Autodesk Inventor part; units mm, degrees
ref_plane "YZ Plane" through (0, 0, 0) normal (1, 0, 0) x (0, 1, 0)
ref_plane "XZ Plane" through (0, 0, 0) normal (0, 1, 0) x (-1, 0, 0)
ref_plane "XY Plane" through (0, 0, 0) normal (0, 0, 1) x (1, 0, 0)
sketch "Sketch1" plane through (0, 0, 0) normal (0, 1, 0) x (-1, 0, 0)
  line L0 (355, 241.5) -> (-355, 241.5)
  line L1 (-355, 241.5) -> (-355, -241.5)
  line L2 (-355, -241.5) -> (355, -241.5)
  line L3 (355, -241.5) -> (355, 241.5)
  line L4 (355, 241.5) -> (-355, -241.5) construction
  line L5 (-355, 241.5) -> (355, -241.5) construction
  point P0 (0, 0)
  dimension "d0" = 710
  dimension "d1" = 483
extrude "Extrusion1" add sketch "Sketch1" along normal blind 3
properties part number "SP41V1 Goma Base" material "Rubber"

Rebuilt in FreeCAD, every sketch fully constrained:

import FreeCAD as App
import Part
import Sketcher
from FreeCAD import Vector

doc = App.newDocument("Part")
body = doc.addObject("PartDesign::Body", "Body")

# Sketch on XZ plane
sketch1 = body.newObject("Sketcher::SketchObject", "Sketch")
sketch1.AttachmentSupport = (doc.getObject("XZ_Plane"), [""])
sketch1.MapMode = "FlatFace"
sketch1.addGeometry(Part.LineSegment(Vector(-355, -242, 0), Vector(-355, 242, 0)), False)
sketch1.addGeometry(Part.LineSegment(Vector(-355, 242, 0), Vector(355, 242, 0)), False)
sketch1.addGeometry(Part.LineSegment(Vector(355, 242, 0), Vector(355, -242, 0)), False)
sketch1.addGeometry(Part.LineSegment(Vector(355, -242, 0), Vector(-355, -242, 0)), False)
sketch1.addConstraint(Sketcher.Constraint("Coincident", 0, 2, 1, 1))
sketch1.addConstraint(Sketcher.Constraint("Coincident", 1, 2, 2, 1))
sketch1.addConstraint(Sketcher.Constraint("Coincident", 2, 2, 3, 1))
sketch1.addConstraint(Sketcher.Constraint("Coincident", 3, 2, 0, 1))
sketch1.addConstraint(Sketcher.Constraint("Vertical", 0))
sketch1.addConstraint(Sketcher.Constraint("Horizontal", 1))
sketch1.addConstraint(Sketcher.Constraint("Vertical", 2))
sketch1.addConstraint(Sketcher.Constraint("Horizontal", 3))
sketch1.addConstraint(Sketcher.Constraint("Symmetric", 0, 2, 2, 2, -1, 1))
sketch1.addConstraint(Sketcher.Constraint("DistanceX", 1, 1, 1, 2, 710.0))
sketch1.addConstraint(Sketcher.Constraint("DistanceY", 0, 1, 0, 2, 483.0))
pad1 = body.newObject("PartDesign::Pad", "Pad")
pad1.Profile = sketch1
pad1.Length = 3
pad1.Reversed = True

doc.recompute()
